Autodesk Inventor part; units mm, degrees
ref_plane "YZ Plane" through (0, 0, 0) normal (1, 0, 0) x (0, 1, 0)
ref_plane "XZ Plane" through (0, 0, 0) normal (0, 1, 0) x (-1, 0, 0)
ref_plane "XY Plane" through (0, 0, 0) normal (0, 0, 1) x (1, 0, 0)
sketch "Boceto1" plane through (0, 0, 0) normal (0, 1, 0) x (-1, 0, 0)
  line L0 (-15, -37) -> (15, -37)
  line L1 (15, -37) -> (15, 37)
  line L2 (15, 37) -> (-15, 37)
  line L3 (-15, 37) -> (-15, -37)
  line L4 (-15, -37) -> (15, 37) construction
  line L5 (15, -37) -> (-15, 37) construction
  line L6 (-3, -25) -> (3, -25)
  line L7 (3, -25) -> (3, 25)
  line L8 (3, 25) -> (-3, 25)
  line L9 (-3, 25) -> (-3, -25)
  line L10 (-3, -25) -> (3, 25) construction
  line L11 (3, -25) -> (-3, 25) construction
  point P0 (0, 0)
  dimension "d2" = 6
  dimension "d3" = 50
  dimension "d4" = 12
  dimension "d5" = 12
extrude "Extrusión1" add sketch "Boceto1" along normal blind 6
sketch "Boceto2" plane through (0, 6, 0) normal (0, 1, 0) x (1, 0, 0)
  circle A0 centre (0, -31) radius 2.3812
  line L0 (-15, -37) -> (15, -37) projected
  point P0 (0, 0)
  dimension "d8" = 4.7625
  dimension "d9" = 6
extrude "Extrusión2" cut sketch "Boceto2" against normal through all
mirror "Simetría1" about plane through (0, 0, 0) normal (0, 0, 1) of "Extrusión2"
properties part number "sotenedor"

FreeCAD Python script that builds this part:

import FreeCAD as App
import Part
import Sketcher
from FreeCAD import Vector


def add_polygon(sketch, points):
    """Adds a closed chain of lines whose ends are joined by coincident constraints."""
    first, n = sketch.GeometryCount, len(points)
    for a, b in zip(points, points[1:] + points[:1]):
        sketch.addGeometry(Part.LineSegment(App.Vector(*a, 0), App.Vector(*b, 0)), False)
    for i in range(n):
        sketch.addConstraint(Sketcher.Constraint("Coincident", first + i, 2, first + (i + 1) % n, 1))

doc = App.newDocument("Part")
body = doc.addObject("PartDesign::Body", "Body")

# Sketch on XZ plane
sketch1 = body.newObject("Sketcher::SketchObject", "Sketch")
sketch1.AttachmentSupport = (doc.getObject("XZ_Plane"), [""])
sketch1.MapMode = "FlatFace"
add_polygon(sketch1, [(15, 37), (15, -37), (-15, -37), (-15, 37)])  # lines 0-3
add_polygon(sketch1, [(-3, -25), (3, -25), (3, 25), (-3, 25)])  # lines 4-7
sketch1.addConstraint(Sketcher.Constraint("Vertical", 0))
sketch1.addConstraint(Sketcher.Constraint("Horizontal", 1))
sketch1.addConstraint(Sketcher.Constraint("Vertical", 2))
sketch1.addConstraint(Sketcher.Constraint("Horizontal", 3))
sketch1.addConstraint(Sketcher.Constraint("Horizontal", 4))
sketch1.addConstraint(Sketcher.Constraint("Vertical", 5))
sketch1.addConstraint(Sketcher.Constraint("Horizontal", 6))
sketch1.addConstraint(Sketcher.Constraint("Vertical", 7))
sketch1.addConstraint(Sketcher.Constraint("Symmetric", 0, 2, 2, 2, -1, 1))
sketch1.addConstraint(Sketcher.Constraint("Symmetric", 4, 2, 6, 2, -1, 1))
sketch1.addConstraint(Sketcher.Constraint("DistanceX", 4, 1, 4, 2, 6.0))
sketch1.addConstraint(Sketcher.Constraint("DistanceY", 5, 1, 5, 2, 50.0))
sketch1.addConstraint(Sketcher.Constraint("DistanceX", 4, 2, 0, 2, 12.0))
sketch1.addConstraint(Sketcher.Constraint("DistanceY", 0, 2, 4, 2, 12.0))
pad1 = body.newObject("PartDesign::Pad", "Pad")
pad1.Profile = sketch1
pad1.Length = 6
pad1.Reversed = True

# Sketch on XZ plane
sketch2 = body.newObject("Sketcher::SketchObject", "Sketch001")
sketch2.AttachmentSupport = (doc.getObject("XZ_Plane"), [""])
sketch2.MapMode = "FlatFace"
sketch2.AttachmentOffset = App.Placement(Vector(0, 0, -6), App.Rotation())
sketch2.addGeometry(Part.Circle(Vector(0, 31, 0), Vector(0, 0, 1), 2.4), False)
sketch2.addConstraint(Sketcher.Constraint("PointOnObject", 0, 3, -2))
sketch2.addConstraint(Sketcher.Constraint("Diameter", 0, 4.7624))
sketch2.addConstraint(Sketcher.Constraint("DistanceY", -1, 1, 0, 3, 31.0))
pocket1 = body.newObject("PartDesign::Pocket", "Pocket")
pocket1.Profile = sketch2
pocket1.Type = "ThroughAll"
pocket1.Reversed = True
doc.recompute()

mirrored = body.newObject("PartDesign::Mirrored", "Mirrored")
mirrored.Originals = [pocket1]
mirrored.MirrorPlane = (doc.getObject("XY_Plane"), [""])
body.Tip = mirrored

doc.recompute()
